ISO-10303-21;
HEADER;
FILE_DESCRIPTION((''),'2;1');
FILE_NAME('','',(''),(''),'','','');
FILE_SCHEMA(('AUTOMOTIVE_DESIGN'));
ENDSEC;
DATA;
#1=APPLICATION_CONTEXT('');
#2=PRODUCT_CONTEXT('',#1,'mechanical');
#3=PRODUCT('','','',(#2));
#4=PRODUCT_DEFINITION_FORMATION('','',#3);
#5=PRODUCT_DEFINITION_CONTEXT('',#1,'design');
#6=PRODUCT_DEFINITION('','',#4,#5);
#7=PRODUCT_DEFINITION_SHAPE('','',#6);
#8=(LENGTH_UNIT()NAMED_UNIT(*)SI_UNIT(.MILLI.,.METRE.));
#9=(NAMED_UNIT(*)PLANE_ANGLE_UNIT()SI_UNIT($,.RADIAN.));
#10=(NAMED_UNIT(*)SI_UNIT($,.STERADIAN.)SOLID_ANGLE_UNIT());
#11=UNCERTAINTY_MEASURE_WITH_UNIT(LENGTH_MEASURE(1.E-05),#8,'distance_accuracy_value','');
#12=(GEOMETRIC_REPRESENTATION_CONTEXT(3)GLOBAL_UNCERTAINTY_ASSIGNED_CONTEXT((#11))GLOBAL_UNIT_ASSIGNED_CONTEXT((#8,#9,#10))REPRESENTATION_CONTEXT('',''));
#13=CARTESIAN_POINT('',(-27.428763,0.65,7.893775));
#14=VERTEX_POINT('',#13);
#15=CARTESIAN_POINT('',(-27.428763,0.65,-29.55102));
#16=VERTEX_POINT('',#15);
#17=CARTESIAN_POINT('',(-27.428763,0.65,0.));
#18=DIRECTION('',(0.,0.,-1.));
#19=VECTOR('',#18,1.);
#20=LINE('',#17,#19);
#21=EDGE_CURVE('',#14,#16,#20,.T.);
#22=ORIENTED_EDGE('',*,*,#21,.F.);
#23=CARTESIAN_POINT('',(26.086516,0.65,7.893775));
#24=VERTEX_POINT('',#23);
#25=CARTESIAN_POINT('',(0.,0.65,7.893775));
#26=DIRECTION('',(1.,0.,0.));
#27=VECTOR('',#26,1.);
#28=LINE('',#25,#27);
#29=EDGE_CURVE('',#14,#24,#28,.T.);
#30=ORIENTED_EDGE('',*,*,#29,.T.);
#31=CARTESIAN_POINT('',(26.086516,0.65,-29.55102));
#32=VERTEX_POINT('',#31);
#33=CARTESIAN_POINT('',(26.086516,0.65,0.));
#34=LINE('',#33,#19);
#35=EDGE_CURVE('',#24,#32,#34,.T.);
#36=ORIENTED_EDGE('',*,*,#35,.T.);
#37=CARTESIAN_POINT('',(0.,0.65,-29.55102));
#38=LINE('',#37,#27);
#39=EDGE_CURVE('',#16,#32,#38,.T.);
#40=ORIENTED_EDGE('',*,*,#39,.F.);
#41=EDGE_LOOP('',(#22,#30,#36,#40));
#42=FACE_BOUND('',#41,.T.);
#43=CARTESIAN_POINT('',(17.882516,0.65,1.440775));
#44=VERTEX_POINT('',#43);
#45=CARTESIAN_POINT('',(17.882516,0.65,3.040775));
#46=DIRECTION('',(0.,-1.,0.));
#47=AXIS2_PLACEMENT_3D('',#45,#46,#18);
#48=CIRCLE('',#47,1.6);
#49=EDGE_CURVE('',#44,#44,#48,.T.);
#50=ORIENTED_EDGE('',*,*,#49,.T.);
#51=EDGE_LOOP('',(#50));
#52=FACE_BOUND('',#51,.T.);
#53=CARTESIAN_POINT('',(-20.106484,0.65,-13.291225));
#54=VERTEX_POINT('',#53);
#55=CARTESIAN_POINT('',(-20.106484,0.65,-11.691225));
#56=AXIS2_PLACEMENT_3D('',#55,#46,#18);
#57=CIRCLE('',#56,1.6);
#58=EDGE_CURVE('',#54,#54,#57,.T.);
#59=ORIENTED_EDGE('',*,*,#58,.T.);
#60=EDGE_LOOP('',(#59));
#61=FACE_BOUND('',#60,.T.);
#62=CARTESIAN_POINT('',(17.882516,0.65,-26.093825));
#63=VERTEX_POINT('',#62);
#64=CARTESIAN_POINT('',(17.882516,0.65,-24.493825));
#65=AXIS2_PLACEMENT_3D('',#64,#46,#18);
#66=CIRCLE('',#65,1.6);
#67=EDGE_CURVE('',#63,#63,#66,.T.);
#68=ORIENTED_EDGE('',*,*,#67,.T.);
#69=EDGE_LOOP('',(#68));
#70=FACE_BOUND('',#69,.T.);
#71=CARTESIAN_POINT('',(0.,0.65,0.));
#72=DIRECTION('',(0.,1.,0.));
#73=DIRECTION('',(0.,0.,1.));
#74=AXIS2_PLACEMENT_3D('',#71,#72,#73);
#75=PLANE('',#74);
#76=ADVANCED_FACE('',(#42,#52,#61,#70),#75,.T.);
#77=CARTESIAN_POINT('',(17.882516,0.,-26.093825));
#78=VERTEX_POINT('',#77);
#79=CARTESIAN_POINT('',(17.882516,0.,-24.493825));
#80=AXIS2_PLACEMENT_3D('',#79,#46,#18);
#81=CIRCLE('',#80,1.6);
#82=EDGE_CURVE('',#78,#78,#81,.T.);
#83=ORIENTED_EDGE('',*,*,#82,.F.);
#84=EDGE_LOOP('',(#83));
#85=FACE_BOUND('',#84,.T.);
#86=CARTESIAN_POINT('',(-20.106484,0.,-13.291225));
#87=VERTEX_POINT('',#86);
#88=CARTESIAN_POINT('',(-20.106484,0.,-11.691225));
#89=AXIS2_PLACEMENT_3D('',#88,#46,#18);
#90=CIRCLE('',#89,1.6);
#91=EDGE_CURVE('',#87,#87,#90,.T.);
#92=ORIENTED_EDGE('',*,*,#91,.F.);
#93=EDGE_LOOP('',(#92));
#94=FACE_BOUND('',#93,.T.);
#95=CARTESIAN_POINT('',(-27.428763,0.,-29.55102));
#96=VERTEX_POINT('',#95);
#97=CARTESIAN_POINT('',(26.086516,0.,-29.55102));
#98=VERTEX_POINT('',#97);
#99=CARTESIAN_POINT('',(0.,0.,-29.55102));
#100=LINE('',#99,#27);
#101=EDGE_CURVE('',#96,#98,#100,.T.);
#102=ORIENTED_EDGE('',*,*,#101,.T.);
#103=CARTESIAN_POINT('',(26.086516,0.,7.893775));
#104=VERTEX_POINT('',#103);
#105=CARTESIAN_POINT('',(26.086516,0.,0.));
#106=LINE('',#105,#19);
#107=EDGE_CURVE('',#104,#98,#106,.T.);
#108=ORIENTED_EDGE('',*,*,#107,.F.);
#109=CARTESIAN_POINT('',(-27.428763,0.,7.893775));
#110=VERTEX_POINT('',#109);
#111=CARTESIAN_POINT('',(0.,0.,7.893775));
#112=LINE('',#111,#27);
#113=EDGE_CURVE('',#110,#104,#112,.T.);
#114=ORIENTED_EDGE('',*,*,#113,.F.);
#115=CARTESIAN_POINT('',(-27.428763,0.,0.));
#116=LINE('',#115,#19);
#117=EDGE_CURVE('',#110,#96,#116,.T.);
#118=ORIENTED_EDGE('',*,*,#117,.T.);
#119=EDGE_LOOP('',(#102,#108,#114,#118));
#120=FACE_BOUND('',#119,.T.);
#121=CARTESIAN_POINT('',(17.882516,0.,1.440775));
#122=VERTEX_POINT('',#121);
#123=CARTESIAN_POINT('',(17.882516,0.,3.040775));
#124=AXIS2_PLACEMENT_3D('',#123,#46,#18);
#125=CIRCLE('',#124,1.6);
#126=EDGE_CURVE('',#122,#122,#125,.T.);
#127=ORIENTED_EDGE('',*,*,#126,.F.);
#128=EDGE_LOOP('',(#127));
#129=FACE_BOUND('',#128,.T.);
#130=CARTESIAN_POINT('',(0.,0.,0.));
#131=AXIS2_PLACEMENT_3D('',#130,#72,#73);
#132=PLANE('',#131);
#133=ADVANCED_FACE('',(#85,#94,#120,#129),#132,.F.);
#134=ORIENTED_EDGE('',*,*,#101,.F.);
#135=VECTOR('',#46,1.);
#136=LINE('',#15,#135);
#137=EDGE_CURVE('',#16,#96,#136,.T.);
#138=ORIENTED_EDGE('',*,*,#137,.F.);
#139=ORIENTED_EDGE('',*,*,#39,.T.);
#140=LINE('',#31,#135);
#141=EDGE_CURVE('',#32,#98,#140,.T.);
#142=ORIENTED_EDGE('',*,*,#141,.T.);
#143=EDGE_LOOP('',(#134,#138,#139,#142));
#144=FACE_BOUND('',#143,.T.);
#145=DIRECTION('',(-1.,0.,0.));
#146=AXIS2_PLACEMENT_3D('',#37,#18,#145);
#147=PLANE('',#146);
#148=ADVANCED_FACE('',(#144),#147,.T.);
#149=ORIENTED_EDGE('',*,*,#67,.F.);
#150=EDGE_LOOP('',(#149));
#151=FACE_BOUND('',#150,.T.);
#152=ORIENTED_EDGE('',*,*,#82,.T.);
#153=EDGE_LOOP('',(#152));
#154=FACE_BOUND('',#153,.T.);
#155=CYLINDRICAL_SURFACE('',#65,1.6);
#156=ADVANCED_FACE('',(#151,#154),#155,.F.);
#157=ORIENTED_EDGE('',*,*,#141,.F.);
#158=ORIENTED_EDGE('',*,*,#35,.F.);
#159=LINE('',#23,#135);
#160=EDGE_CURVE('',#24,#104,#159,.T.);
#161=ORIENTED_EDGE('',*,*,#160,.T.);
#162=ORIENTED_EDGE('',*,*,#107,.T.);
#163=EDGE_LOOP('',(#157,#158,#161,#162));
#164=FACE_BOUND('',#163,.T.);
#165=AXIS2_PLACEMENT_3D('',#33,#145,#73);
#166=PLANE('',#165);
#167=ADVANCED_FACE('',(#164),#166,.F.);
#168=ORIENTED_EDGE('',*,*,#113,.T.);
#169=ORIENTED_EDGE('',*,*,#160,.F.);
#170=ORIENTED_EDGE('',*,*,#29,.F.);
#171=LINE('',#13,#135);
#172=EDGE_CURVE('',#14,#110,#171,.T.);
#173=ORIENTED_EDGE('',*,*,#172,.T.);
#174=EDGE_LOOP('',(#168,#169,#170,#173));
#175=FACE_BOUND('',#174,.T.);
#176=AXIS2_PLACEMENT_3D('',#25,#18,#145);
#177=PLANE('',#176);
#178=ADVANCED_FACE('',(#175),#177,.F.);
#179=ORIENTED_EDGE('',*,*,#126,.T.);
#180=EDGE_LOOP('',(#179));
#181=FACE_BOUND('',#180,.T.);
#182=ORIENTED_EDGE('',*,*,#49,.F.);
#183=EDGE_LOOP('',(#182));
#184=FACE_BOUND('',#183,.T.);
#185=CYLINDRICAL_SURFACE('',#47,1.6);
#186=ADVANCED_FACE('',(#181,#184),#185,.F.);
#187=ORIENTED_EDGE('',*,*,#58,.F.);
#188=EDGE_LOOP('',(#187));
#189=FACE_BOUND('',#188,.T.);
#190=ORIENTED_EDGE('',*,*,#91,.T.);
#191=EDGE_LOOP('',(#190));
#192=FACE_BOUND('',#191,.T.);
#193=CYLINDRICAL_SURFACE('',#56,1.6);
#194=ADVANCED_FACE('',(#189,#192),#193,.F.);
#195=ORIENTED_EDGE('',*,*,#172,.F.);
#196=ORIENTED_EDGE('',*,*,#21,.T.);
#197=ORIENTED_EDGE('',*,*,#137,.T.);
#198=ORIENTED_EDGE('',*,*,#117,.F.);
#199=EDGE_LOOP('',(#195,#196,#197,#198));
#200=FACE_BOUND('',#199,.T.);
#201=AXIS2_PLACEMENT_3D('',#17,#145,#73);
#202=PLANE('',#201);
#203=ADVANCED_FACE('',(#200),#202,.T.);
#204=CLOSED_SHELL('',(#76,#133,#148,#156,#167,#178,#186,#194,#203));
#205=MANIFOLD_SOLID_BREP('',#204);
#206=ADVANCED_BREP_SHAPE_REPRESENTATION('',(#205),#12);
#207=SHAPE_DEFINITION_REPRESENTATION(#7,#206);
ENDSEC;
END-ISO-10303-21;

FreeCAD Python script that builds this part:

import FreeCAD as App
import Part
import Sketcher
from FreeCAD import Vector
Q = App.Units.Quantity


def add_polygon(sketch, points):
    """Adds a closed chain of lines whose ends are joined by coincident constraints."""
    first, n = sketch.GeometryCount, len(points)
    for a, b in zip(points, points[1:] + points[:1]):
        sketch.addGeometry(Part.LineSegment(App.Vector(*a, 0), App.Vector(*b, 0)), False)
    for i in range(n):
        sketch.addConstraint(Sketcher.Constraint("Coincident", first + i, 2, first + (i + 1) % n, 1))

doc = App.newDocument("Part")
body = doc.addObject("PartDesign::Body", "Body")

# Sketch on XZ plane
sketch1 = doc.addObject("Sketcher::SketchObject", "Sketch")
body.addObject(sketch1)
sketch1.AttachmentSupport = (doc.XZ_Plane, [""])
sketch1.MapMode = "FlatFace"
add_polygon(sketch1, [(-27.4, -29.6), (-27.4, 7.9), (26.1, 7.9), (26.1, 6.6), (26.1, -29.6)])  # lines 0-4
sketch1.addConstraint([
    Sketcher.Constraint("Vertical", 0),
    Sketcher.Constraint("Horizontal", 1),
    Sketcher.Constraint("Vertical", 2),
    Sketcher.Constraint("Vertical", 3),
    Sketcher.Constraint("Horizontal", 4),
    Sketcher.Constraint("DistanceY", 2, 2, 2, 1, Q("1.25 mm")),
    Sketcher.Constraint("DistanceX", 1, 1, 1, 2, Q("53.515279 mm")),
    Sketcher.Constraint("DistanceY", 0, 1, 0, 2, Q("37.444796 mm")),
    Sketcher.Constraint("DistanceY", 3, 2, -1, 1, Q("29.55102 mm")),
    Sketcher.Constraint("DistanceX", 0, 2, -1, 1, Q("27.428763 mm")),
])
pad1 = doc.addObject("PartDesign::Pad", "Pad")
body.addObject(pad1)
pad1.Profile = sketch1
pad1.Length = 0.65
pad1.Reversed = True

# Sketch on XZ plane
sketch2 = doc.addObject("Sketcher::SketchObject", "Sketch001")
body.addObject(sketch2)
sketch2.AttachmentSupport = (doc.XZ_Plane, [""])
sketch2.MapMode = "FlatFace"
sketch2.addGeometry([
    Part.Circle(Vector(-20.1, -11.7, 0), Vector(0, 0, 1), 1.6),
    Part.Circle(Vector(17.9, -24.5, 0), Vector(0, 0, 1), 1.6),
    Part.Circle(Vector(17.9, 3, 0), Vector(0, 0, 1), 1.6),
], False)
sketch2.addConstraint([
    Sketcher.Constraint("Equal", 0, 1),
    Sketcher.Constraint("Equal", 1, 2),
    Sketcher.Constraint("Vertical", 1, 3, 2, 3),
    Sketcher.Constraint("Diameter", 0, Q("3.2 mm")),
    Sketcher.Constraint("DistanceX", 0, 3, 1, 3, Q("37.989 mm")),
    Sketcher.Constraint("DistanceY", 0, 3, 2, 3, Q("14.732 mm")),
    Sketcher.Constraint("DistanceY", 1, 3, 0, 3, Q("12.8026 mm")),
    Sketcher.Constraint("DistanceX", 0, 3, -1, 1, Q("20.106484 mm")),
    Sketcher.Constraint("DistanceY", 0, 3, -1, 1, Q("11.691225 mm")),
])
pocket1 = doc.addObject("PartDesign::Pocket", "Pocket")
body.addObject(pocket1)
pocket1.Profile = sketch2
pocket1.Type = "ThroughAll"

doc.recompute()
